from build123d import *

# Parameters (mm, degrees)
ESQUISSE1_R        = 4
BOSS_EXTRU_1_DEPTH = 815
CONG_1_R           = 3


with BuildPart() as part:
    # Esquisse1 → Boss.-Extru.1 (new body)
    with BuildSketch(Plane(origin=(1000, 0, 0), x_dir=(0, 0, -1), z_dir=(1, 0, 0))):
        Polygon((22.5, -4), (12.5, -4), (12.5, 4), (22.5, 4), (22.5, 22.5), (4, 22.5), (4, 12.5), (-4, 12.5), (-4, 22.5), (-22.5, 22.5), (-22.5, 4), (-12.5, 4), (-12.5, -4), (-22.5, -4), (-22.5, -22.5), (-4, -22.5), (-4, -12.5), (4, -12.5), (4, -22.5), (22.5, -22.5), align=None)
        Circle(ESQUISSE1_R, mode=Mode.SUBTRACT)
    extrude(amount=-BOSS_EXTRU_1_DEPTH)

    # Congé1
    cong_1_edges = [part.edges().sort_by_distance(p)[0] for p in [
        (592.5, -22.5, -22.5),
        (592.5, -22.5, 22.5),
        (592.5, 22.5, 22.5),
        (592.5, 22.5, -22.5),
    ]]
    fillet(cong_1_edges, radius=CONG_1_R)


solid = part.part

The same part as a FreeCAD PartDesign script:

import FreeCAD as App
import Part
import Sketcher

V = App.Vector
Q = App.Units.Quantity


def edges_at(feature, points):
    """Names of the edges that pass closest to the given points."""
    edges = feature.Shape.Edges
    near = lambda p: min(range(len(edges)), key=lambda i: edges[i].distToShape(Part.Vertex(*p))[0])
    return sorted({f"Edge{near(p) + 1}" for p in points})


def add_polygon(sketch, points):
    """Adds a closed chain of lines whose ends are joined by coincident constraints."""
    first, n = sketch.GeometryCount, len(points)
    for a, b in zip(points, points[1:] + points[:1]):
        sketch.addGeometry(Part.LineSegment(App.Vector(*a, 0), App.Vector(*b, 0)), False)
    for i in range(n):
        sketch.addConstraint(Sketcher.Constraint("Coincident", first + i, 2, first + (i + 1) % n, 1))

doc = App.newDocument("Part")
body = doc.addObject("PartDesign::Body", "Body")

# Sketch on YZ plane
sketch1 = body.newObject("Sketcher::SketchObject", "Sketch")
sketch1.AttachmentSupport = (doc.getObject("YZ_Plane"), [""])
sketch1.MapMode = "FlatFace"
sketch1.AttachmentOffset = App.Placement(V(0, 0, 1000), App.Rotation())
add_polygon(sketch1, [(-4, -22.5), (-4, -12.5), (4, -12.5), (4, -22.5), (22.5, -22.5), (22.5, -4), (12.5, -4), (12.5, 4), (22.5, 4), (22.5, 22.5), (4, 22.5), (4, 12.5), (-4, 12.5), (-4, 22.5), (-22.5, 22.5), (-22.5, 4), (-12.5, 4), (-12.5, -4), (-22.5, -4), (-22.5, -22.5)])  # lines 0-19
sketch1.addGeometry(Part.Circle(V(0, 0, 0), V(0, 0, 1), 4), False)  # 20
sketch1.addConstraint([
    Sketcher.Constraint("Vertical", 0),
    Sketcher.Constraint("Horizontal", 1),
    Sketcher.Constraint("Vertical", 2),
    Sketcher.Constraint("Horizontal", 3),
    Sketcher.Constraint("Vertical", 4),
    Sketcher.Constraint("Horizontal", 5),
    Sketcher.Constraint("Vertical", 6),
    Sketcher.Constraint("Horizontal", 7),
    Sketcher.Constraint("Vertical", 8),
    Sketcher.Constraint("Horizontal", 9),
    Sketcher.Constraint("Vertical", 10),
    Sketcher.Constraint("Horizontal", 11),
    Sketcher.Constraint("Vertical", 12),
    Sketcher.Constraint("Horizontal", 13),
    Sketcher.Constraint("Vertical", 14),
    Sketcher.Constraint("Horizontal", 15),
    Sketcher.Constraint("Vertical", 16),
    Sketcher.Constraint("Horizontal", 17),
    Sketcher.Constraint("Vertical", 18),
    Sketcher.Constraint("Horizontal", 19),
    Sketcher.Constraint("Coincident", 20, 3, -1, 1),
    Sketcher.Constraint("Symmetric", 0, 2, 10, 2, -1, 1),
    Sketcher.Constraint("Symmetric", 2, 2, 12, 2, -1, 1),
    Sketcher.Constraint("Symmetric", 4, 2, 14, 2, -1, 1),
    Sketcher.Constraint("Symmetric", 6, 2, 16, 2, -1, 1),
    Sketcher.Constraint("Symmetric", 8, 2, 18, 2, -1, 1),
    Sketcher.Constraint("Symmetric", 9, 2, 12, 2, -2),
    Sketcher.Constraint("Symmetric", 7, 2, 14, 2, -2),
    Sketcher.Constraint("Equal", 17, 0),
    Sketcher.Constraint("Equal", 19, 4),
    Sketcher.Constraint("Equal", 11, 6),
    Sketcher.Constraint("Diameter", 20, Q("8 mm")),
    Sketcher.Constraint("DistanceX", 1, 1, 1, 2, Q("8 mm")),
    Sketcher.Constraint("DistanceX", 5, 2, 5, 1, Q("10 mm")),
    Sketcher.Constraint("DistanceX", 3, 1, 3, 2, Q("18.5 mm")),
])
pad1 = body.newObject("PartDesign::Pad", "Pad")
pad1.Profile = sketch1
pad1.Length = 815
pad1.Reversed = True
doc.recompute()

fillet = body.newObject("PartDesign::Fillet", "Fillet")
fillet.Base = (pad1, edges_at(pad1, [
    (592.5, -22.5, -22.5),
    (592.5, -22.5, 22.5),
    (592.5, 22.5, 22.5),
    (592.5, 22.5, -22.5),
]))
fillet.Radius = 3

doc.recompute()
